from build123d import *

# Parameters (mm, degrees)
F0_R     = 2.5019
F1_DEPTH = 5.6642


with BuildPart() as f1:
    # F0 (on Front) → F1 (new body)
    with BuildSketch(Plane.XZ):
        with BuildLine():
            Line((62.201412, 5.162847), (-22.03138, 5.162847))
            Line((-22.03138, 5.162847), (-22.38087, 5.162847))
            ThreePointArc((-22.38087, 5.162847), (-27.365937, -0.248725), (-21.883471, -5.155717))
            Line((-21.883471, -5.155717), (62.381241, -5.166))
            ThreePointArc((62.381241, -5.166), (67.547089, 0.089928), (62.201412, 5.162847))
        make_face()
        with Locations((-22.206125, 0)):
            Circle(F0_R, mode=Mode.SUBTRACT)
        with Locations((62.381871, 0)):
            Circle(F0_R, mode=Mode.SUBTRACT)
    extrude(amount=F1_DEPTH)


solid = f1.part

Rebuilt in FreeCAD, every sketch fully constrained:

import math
import FreeCAD as App
import Part
import Sketcher
Q = App.Units.Quantity

doc = App.newDocument("Part")
body = doc.addObject("PartDesign::Body", "Body")

sketch1 = doc.addObject("Sketcher::SketchObject", "Sketch")
body.addObject(sketch1)
sketch1.AttachmentSupport = (doc.XZ_Plane, [""])
sketch1.MapMode = "FlatFace"
sketch1.addGeometry(Part.LineSegment(App.Vector(62.2, 5.2, 0), App.Vector(-22.4, 5.2, 0)), False)
sketch1.addGeometry(Part.ArcOfCircle(Part.Circle(App.Vector(-22.2, 0, 0), App.Vector(0, 0, 1), 5.2), math.radians(92), math.radians(274)), False)
sketch1.addGeometry(Part.LineSegment(App.Vector(-21.9, -5.2, 0), App.Vector(62.4, -5.2, 0)), False)
sketch1.addGeometry(Part.ArcOfCircle(Part.Circle(App.Vector(62.4, 0, 0), App.Vector(0, 0, 1), 5.2), math.radians(-90), math.radians(92)), False)
sketch1.addGeometry(Part.Circle(App.Vector(-22.2, 0, 0), App.Vector(0, 0, 1), 2.5), False)
sketch1.addGeometry(Part.Circle(App.Vector(62.4, 0, 0), App.Vector(0, 0, 1), 2.5), False)
sketch1.addConstraint(Sketcher.Constraint("Coincident", 0, 2, 1, 1))
sketch1.addConstraint(Sketcher.Constraint("Coincident", 1, 2, 2, 1))
sketch1.addConstraint(Sketcher.Constraint("Tangent", 2, 2, 3, 1))
sketch1.addConstraint(Sketcher.Constraint("Coincident", 3, 2, 0, 1))
sketch1.addConstraint(Sketcher.Constraint("Horizontal", 0))
sketch1.addConstraint(Sketcher.Constraint("Coincident", 4, 3, 1, 3))
sketch1.addConstraint(Sketcher.Constraint("Coincident", 5, 3, 3, 3))
sketch1.addConstraint(Sketcher.Constraint("Equal", 4, 5))
sketch1.addConstraint(Sketcher.Constraint("PointOnObject", 1, 3, -1))
sketch1.addConstraint(Sketcher.Constraint("PointOnObject", 3, 3, -1))
sketch1.addConstraint(Sketcher.Constraint("Diameter", 4, Q("0.197 in")))
sketch1.addConstraint(Sketcher.Constraint("Radius", 3, Q("5.166 mm")))
sketch1.addConstraint(Sketcher.Constraint("Radius", 1, Q("5.165803 mm")))
sketch1.addConstraint(Sketcher.Constraint("DistanceX", 0, 2, 0, 1, Q("84.582282 mm")))
sketch1.addConstraint(Sketcher.Constraint("DistanceX", 0, 2, 1, 2, Q("0.497399 mm")))
sketch1.addConstraint(Sketcher.Constraint("DistanceX", -1, 1, 3, 3, Q("62.381872 mm")))
sketch1.addConstraint(Sketcher.Constraint("DistanceX", 0, 2, -1, 1, Q("22.38087 mm")))
pad1 = doc.addObject("PartDesign::Pad", "Pad")
body.addObject(pad1)
pad1.Profile = sketch1
pad1.Length = Q("0.223 in")

doc.recompute()
